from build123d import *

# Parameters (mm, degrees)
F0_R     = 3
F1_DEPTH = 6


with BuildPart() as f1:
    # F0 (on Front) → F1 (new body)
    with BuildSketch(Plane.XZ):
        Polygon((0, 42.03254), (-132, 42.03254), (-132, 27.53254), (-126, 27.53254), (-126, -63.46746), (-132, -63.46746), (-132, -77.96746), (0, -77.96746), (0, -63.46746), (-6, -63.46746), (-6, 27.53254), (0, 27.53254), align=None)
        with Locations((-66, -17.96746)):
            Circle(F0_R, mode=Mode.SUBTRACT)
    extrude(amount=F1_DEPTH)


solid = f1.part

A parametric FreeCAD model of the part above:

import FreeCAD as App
import Part
import Sketcher
Q = App.Units.Quantity


def add_polygon(sketch, points):
    """Adds a closed chain of lines whose ends are joined by coincident constraints."""
    first, n = sketch.GeometryCount, len(points)
    for a, b in zip(points, points[1:] + points[:1]):
        sketch.addGeometry(Part.LineSegment(App.Vector(*a, 0), App.Vector(*b, 0)), False)
    for i in range(n):
        sketch.addConstraint(Sketcher.Constraint("Coincident", first + i, 2, first + (i + 1) % n, 1))

doc = App.newDocument("Part")
body = doc.addObject("PartDesign::Body", "Body")

sketch1 = body.newObject("Sketcher::SketchObject", "Sketch")
sketch1.AttachmentSupport = (doc.getObject("XZ_Plane"), [""])
sketch1.MapMode = "FlatFace"
add_polygon(sketch1, [(0, 42.03254), (-132, 42.03254), (-132, 27.53254), (-126, 27.53254), (-126, -63.46746), (-132, -63.46746), (-132, -77.96746), (0, -77.96746), (0, -63.46746), (-6, -63.46746), (-6, 27.53254), (0, 27.53254)])
sketch1.addGeometry(Part.Circle(App.Vector(-66, -17.96746, 0), App.Vector(0, 0, 1), 3), False)
sketch1.addConstraint([
    Sketcher.Constraint("Horizontal", 0),
    Sketcher.Constraint("Vertical", 1),
    Sketcher.Constraint("Horizontal", 2),
    Sketcher.Constraint("Vertical", 3),
    Sketcher.Constraint("Horizontal", 4),
    Sketcher.Constraint("Vertical", 5),
    Sketcher.Constraint("Horizontal", 6),
    Sketcher.Constraint("Vertical", 7),
    Sketcher.Constraint("Horizontal", 8),
    Sketcher.Constraint("Vertical", 9),
    Sketcher.Constraint("Horizontal", 10),
    Sketcher.Constraint("Vertical", 11),
    Sketcher.Constraint("PointOnObject", 6, 2, -2),
    Sketcher.Constraint("PointOnObject", 10, 2, -2),
    Sketcher.Constraint("Horizontal", 4, 2, 7, 2),
    Sketcher.Constraint("Horizontal", 2, 2, 9, 2),
    Sketcher.Constraint("Vertical", 1, 2, 4, 2),
    Sketcher.Constraint("Equal", 4, 8),
    Sketcher.Constraint("Equal", 1, 5),
    Sketcher.Constraint("Diameter", 12, Q("6 mm")),
    Sketcher.Constraint("DistanceX", 0, 2, 0, 1, Q("132 mm")),
    Sketcher.Constraint("DistanceX", 2, 1, 2, 2, Q("6 mm")),
    Sketcher.Constraint("DistanceY", 3, 2, 3, 1, Q("91 mm")),
    Sketcher.Constraint("DistanceY", 1, 2, 1, 1, Q("14.5 mm")),
    Sketcher.Constraint("DistanceX", 12, 3, -1, 1, Q("66 mm")),
    Sketcher.Constraint("DistanceY", 12, 3, 0, 2, Q("60 mm")),
    Sketcher.Constraint("DistanceY", 12, 3, -1, 1, Q("17.96746 mm")),
])
pad1 = body.newObject("PartDesign::Pad", "Pad")
pad1.Profile = sketch1
pad1.Length = 6

doc.recompute()
